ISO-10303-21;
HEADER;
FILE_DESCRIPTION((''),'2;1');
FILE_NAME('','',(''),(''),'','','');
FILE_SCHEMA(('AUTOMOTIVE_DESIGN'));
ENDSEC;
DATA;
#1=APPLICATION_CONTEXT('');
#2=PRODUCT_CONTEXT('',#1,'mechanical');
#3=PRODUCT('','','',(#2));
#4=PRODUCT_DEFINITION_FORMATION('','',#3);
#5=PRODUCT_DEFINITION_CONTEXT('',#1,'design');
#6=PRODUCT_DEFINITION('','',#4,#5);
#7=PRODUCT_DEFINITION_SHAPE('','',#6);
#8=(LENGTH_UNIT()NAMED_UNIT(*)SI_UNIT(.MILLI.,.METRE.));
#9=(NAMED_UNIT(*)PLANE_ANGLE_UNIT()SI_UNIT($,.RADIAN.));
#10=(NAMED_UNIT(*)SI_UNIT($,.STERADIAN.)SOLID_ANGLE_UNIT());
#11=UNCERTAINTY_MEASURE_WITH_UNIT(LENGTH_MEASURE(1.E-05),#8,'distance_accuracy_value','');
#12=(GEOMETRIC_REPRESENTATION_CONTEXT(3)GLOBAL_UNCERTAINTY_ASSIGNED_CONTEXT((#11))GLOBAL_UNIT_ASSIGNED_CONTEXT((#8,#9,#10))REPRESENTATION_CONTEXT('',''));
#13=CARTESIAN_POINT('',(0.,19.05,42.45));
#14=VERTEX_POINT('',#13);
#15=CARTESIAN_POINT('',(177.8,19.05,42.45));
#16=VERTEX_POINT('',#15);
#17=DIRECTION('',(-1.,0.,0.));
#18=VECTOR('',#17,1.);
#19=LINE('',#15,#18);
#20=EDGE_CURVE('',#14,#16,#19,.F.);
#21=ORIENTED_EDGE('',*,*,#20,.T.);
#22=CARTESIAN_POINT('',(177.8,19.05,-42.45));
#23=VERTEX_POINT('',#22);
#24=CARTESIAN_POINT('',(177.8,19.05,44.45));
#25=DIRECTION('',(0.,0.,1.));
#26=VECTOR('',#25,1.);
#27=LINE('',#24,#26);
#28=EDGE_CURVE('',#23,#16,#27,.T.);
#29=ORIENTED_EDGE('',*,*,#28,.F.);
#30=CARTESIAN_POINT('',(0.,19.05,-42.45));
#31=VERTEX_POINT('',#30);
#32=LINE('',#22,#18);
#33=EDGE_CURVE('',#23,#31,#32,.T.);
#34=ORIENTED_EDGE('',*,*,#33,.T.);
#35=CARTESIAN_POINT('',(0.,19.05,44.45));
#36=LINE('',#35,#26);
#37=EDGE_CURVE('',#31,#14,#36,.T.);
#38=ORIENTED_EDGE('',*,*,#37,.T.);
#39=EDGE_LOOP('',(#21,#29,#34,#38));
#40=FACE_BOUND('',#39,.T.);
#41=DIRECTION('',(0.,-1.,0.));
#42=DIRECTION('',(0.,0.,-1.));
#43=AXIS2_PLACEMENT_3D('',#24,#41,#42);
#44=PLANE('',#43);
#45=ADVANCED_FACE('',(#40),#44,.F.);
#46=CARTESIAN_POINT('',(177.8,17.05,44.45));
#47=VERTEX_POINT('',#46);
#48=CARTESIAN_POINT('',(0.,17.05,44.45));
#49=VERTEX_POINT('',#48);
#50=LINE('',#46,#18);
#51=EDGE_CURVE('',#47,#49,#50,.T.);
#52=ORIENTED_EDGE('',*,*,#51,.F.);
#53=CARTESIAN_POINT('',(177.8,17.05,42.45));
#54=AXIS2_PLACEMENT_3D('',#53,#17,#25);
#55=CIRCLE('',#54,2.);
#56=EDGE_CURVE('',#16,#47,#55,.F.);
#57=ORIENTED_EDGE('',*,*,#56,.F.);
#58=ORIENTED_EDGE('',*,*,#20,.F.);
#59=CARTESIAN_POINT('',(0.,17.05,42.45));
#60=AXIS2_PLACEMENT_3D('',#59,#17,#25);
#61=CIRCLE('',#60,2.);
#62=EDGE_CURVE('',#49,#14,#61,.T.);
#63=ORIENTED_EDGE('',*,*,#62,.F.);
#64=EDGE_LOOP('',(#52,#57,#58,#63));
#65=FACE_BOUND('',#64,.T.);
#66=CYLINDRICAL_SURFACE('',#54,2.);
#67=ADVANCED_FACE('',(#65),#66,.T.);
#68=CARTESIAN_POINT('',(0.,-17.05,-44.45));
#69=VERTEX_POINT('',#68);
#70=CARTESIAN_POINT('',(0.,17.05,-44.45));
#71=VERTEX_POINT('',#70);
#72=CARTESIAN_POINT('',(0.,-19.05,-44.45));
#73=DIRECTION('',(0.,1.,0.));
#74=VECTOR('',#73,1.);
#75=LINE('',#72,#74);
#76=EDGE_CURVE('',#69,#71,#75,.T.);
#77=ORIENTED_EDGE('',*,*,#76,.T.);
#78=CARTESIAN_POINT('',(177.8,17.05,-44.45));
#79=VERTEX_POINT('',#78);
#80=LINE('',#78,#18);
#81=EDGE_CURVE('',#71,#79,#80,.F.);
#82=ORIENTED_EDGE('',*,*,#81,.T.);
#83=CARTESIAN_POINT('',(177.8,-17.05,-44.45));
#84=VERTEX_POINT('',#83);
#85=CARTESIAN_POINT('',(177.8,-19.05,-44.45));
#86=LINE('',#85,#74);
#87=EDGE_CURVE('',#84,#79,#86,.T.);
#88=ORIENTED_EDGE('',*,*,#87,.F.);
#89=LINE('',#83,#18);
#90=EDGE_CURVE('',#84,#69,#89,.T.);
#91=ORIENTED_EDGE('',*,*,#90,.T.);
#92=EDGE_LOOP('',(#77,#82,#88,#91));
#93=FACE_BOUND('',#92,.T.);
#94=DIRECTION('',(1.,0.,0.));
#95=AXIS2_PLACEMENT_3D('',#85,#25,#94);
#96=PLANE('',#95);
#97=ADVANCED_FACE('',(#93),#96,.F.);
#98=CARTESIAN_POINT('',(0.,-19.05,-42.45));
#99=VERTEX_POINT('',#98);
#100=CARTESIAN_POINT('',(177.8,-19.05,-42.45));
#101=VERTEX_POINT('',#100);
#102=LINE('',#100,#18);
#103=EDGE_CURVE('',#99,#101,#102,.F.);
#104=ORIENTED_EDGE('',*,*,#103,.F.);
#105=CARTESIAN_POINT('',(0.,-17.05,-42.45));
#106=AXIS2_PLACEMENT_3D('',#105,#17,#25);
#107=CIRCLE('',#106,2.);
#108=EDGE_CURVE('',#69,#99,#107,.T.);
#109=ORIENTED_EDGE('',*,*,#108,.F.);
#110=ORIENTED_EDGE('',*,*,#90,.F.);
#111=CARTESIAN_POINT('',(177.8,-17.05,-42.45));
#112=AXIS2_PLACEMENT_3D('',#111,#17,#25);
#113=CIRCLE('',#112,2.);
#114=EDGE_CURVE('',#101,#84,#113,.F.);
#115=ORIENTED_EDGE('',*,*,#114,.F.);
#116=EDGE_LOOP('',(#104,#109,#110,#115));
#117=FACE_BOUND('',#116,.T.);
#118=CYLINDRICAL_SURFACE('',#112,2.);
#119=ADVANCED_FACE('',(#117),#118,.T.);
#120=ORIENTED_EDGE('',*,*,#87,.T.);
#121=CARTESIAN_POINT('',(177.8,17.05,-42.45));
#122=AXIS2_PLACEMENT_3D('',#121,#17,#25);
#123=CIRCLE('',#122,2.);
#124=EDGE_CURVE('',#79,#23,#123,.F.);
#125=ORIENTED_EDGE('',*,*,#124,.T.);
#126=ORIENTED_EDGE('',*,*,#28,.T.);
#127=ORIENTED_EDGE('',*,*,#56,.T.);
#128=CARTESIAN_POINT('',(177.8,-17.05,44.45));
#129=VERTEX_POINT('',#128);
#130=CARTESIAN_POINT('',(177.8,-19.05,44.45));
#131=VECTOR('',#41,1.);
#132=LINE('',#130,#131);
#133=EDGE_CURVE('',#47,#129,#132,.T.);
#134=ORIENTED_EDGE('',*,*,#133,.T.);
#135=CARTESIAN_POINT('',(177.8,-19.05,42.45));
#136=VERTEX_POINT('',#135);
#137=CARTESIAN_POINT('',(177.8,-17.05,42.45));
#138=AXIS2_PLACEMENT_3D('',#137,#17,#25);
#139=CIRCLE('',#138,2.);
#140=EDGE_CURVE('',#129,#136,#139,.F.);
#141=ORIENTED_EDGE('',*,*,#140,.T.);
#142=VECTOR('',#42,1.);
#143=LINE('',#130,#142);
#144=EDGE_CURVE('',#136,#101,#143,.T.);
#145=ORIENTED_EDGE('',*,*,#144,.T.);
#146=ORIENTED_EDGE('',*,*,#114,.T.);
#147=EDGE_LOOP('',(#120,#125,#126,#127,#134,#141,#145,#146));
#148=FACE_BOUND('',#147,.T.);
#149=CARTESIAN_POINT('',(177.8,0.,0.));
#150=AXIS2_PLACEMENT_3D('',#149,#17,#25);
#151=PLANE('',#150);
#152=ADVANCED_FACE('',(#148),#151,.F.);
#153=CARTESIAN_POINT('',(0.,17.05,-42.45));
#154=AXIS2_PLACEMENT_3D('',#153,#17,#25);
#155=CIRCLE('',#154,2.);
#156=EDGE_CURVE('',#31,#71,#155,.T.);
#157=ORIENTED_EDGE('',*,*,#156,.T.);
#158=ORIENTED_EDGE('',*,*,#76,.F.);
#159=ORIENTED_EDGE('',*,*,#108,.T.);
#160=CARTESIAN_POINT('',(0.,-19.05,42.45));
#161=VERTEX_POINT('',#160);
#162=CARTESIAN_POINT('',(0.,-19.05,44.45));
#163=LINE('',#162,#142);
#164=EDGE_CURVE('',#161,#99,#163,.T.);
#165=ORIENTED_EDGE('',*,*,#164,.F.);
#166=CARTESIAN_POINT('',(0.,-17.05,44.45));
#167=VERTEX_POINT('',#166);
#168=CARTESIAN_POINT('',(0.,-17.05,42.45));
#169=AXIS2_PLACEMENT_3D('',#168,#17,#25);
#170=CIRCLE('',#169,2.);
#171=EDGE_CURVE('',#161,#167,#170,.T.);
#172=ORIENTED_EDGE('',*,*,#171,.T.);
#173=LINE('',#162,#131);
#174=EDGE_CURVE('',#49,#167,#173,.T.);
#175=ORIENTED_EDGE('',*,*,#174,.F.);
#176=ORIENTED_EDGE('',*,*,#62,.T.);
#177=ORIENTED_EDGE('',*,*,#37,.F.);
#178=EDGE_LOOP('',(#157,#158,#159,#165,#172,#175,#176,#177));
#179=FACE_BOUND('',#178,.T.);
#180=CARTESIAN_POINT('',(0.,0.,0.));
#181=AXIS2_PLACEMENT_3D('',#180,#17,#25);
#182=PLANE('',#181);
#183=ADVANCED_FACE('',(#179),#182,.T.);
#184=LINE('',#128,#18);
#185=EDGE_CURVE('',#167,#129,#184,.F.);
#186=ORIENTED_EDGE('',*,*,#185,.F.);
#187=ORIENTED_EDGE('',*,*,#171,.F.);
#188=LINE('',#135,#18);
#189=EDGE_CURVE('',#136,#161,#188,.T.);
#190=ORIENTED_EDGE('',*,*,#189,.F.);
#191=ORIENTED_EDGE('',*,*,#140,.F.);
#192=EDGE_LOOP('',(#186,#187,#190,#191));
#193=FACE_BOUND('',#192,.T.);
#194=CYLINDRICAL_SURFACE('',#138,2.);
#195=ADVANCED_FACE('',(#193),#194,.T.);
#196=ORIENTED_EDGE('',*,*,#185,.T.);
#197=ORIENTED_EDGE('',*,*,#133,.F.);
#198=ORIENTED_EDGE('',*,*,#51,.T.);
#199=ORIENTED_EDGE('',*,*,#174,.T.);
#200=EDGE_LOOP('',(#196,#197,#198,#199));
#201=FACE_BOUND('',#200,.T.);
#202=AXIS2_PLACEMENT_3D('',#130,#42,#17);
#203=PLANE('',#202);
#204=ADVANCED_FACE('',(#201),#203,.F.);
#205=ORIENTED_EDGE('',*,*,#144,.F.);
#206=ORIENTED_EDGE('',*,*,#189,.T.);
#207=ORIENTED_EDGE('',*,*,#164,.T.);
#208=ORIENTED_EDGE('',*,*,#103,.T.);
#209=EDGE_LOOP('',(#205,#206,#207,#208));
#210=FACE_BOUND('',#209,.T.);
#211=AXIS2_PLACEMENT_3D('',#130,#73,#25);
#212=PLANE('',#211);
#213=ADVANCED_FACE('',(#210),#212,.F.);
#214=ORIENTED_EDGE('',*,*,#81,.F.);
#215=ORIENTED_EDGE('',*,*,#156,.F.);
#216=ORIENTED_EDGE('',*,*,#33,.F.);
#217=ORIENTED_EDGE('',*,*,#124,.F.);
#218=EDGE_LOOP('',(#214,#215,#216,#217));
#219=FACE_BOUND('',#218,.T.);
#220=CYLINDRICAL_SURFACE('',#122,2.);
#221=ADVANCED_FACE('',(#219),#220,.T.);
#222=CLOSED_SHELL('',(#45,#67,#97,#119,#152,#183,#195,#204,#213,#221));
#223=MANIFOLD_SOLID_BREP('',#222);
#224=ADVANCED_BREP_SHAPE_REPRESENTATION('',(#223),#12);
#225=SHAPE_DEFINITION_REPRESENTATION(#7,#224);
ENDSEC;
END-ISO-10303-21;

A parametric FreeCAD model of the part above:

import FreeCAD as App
import Part
import Sketcher
Q = App.Units.Quantity


def edges_at(feature, points):
    """Names of the edges that pass closest to the given points."""
    edges = feature.Shape.Edges
    near = lambda p: min(range(len(edges)), key=lambda i: edges[i].distToShape(Part.Vertex(*p))[0])
    return sorted({f"Edge{near(p) + 1}" for p in points})

doc = App.newDocument("Part")
params = doc.addObject("Spreadsheet::Sheet", "Params")
for row, (alias, value) in enumerate([
    ("sketch1_width", "1.5 in"),
    ("sketch1_height", "3.5 in"),
    ("pad1_length", "7 in"),
    ("fillet_radius", "2 mm"),
], start=1):
    params.set(f"A{row}", alias)
    params.set(f"B{row}", "=" + value)
    params.setAlias(f"B{row}", alias)

body = doc.addObject("PartDesign::Body", "Body")

# Sketch on YZ plane
sketch1 = body.newObject("Sketcher::SketchObject", "Sketch")
sketch1.AttachmentSupport = (doc.getObject("YZ_Plane"), [""])
sketch1.MapMode = "FlatFace"
sketch1.addGeometry(Part.LineSegment(App.Vector(19, 44, 0), App.Vector(-19, 44, 0)), False)
sketch1.addGeometry(Part.LineSegment(App.Vector(-19, 44, 0), App.Vector(-19, -44, 0)), False)
sketch1.addGeometry(Part.LineSegment(App.Vector(-19, -44, 0), App.Vector(19, -44, 0)), False)
sketch1.addGeometry(Part.LineSegment(App.Vector(19, -44, 0), App.Vector(19, 44, 0)), False)
sketch1.addConstraint(Sketcher.Constraint("Coincident", 0, 2, 1, 1))
sketch1.addConstraint(Sketcher.Constraint("Coincident", 1, 2, 2, 1))
sketch1.addConstraint(Sketcher.Constraint("Coincident", 2, 2, 3, 1))
sketch1.addConstraint(Sketcher.Constraint("Coincident", 3, 2, 0, 1))
sketch1.addConstraint(Sketcher.Constraint("Horizontal", 0))
sketch1.addConstraint(Sketcher.Constraint("Vertical", 1))
sketch1.addConstraint(Sketcher.Constraint("Horizontal", 2))
sketch1.addConstraint(Sketcher.Constraint("Vertical", 3))
sketch1.addConstraint(Sketcher.Constraint("Symmetric", 0, 2, 2, 2, -1, 1))
sketch1.addConstraint(Sketcher.Constraint("DistanceX", 0, 2, 0, 1, Q("1.5 in")))
sketch1.addConstraint(Sketcher.Constraint("DistanceY", 1, 2, 1, 1, Q("3.5 in")))
sketch1.setExpression("Constraints[9]", "Params.sketch1_width")
sketch1.setExpression("Constraints[10]", "Params.sketch1_height")
pad1 = body.newObject("PartDesign::Pad", "Pad")
pad1.Profile = sketch1
pad1.setExpression("Length", "Params.pad1_length")
doc.recompute()

fillet = body.newObject("PartDesign::Fillet", "Fillet")
fillet.Base = (pad1, edges_at(pad1, [
    (88.9, -19.05, -44.45),
    (88.9, -19.05, 44.45),
    (88.9, 19.05, 44.45),
    (88.9, 19.05, -44.45),
]))
fillet.setExpression("Radius", "Params.fillet_radius")

doc.recompute()
